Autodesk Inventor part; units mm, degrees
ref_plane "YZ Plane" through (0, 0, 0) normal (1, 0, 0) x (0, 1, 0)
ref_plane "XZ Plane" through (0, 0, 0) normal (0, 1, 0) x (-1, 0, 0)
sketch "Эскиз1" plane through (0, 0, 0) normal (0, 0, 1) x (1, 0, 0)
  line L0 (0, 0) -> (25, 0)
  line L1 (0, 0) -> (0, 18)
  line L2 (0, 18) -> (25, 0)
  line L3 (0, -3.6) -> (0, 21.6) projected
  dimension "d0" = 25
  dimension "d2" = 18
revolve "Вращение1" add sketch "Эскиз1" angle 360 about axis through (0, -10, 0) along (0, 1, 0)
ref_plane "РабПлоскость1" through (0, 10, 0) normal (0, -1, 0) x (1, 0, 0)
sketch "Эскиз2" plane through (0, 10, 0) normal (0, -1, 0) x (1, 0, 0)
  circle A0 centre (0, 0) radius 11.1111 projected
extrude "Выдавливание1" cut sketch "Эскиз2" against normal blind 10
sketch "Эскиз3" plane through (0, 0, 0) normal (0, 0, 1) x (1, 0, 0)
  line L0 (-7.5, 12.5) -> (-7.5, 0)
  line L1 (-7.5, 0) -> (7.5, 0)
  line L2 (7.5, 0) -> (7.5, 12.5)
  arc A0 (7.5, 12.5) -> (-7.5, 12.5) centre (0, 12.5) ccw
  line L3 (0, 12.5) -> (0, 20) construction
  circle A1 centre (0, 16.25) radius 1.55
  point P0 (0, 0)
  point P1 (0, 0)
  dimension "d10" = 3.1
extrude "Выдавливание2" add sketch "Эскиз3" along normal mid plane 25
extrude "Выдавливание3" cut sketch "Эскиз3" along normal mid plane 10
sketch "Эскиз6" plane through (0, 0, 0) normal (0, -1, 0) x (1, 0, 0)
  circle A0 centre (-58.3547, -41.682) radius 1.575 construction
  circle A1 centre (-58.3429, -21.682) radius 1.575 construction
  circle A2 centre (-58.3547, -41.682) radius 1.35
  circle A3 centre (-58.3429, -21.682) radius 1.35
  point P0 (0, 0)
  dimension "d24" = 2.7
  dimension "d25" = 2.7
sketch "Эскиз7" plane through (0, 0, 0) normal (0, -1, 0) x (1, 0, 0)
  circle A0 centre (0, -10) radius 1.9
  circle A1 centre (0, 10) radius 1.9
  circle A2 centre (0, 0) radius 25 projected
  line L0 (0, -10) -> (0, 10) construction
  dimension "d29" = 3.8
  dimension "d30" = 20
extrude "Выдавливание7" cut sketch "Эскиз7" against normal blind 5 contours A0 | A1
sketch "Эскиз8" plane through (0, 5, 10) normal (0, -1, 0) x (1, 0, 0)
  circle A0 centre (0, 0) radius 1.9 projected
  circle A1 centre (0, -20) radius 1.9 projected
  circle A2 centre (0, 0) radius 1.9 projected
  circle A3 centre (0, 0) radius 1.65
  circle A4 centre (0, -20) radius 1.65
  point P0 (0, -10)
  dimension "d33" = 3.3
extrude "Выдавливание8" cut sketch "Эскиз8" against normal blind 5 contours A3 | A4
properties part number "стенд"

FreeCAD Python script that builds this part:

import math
import FreeCAD as App
import Part
import Sketcher

doc = App.newDocument("Part")
params = doc.addObject("Spreadsheet::Sheet", "Params")
for row, (alias, value) in enumerate([
    ("sketch1_width", "25 mm"),
    ("sketch1_height", "18 mm"),
    ("revolution_angle", "360 deg"),
    ("pocket1_length", "10 mm"),
    ("sketch3_diameter", "3.1 mm"),
    ("sketch3_radius", "7.5 mm"),
    ("sketch3_height", "12.5 mm"),
    ("pad1_length", "25 mm"),
    ("sketch4_diameter", "3.1 mm"),
    ("sketch4_radius", "7.5 mm"),
    ("sketch4_height", "12.5 mm"),
    ("pocket2_length", "10 mm"),
    ("sketch5_diameter", "3.8 mm"),
    ("pocket3_length", "5 mm"),
    ("sketch6_diameter", "3.3 mm"),
    ("pocket4_length", "5 mm"),
], start=1):
    params.set(f"A{row}", alias)
    params.set(f"B{row}", "=" + value)
    params.setAlias(f"B{row}", alias)

body = doc.addObject("PartDesign::Body", "Body")

# Sketch on XY plane
sketch1 = body.newObject("Sketcher::SketchObject", "Sketch")
sketch1.AttachmentSupport = (doc.getObject("XY_Plane"), [""])
sketch1.MapMode = "FlatFace"
sketch1.addGeometry([
    Part.LineSegment(App.Vector(0, 18, 0), App.Vector(0, 0, 0)),
    Part.LineSegment(App.Vector(0, 0, 0), App.Vector(25, 0, 0)),
    Part.LineSegment(App.Vector(25, 0, 0), App.Vector(0, 18, 0)),
], False)
sketch1.addConstraint([
    Sketcher.Constraint("Coincident", 0, 2, 1, 1),
    Sketcher.Constraint("Coincident", 1, 2, 2, 1),
    Sketcher.Constraint("Coincident", 2, 2, 0, 1),
    Sketcher.Constraint("Vertical", 0),
    Sketcher.Constraint("Horizontal", 1),
    Sketcher.Constraint("Coincident", 0, 2, -1, 1),
    Sketcher.Constraint("DistanceX", 1, 1, 1, 2, 25.0),
    Sketcher.Constraint("DistanceY", 0, 2, 0, 1, 18.0),
])
sketch1.setExpression("Constraints[6]", "Params.sketch1_width")
sketch1.setExpression("Constraints[7]", "Params.sketch1_height")
revolution = body.newObject("PartDesign::Revolution", "Revolution")
revolution.Profile = sketch1
revolution.ReferenceAxis = (sketch1, ["V_Axis"])
revolution.setExpression("Angle", "Params.revolution_angle")

# Sketch on XZ plane
sketch2 = body.newObject("Sketcher::SketchObject", "Sketch001")
sketch2.AttachmentSupport = (doc.getObject("XZ_Plane"), [""])
sketch2.MapMode = "FlatFace"
sketch2.AttachmentOffset = App.Placement(App.Vector(0, 0, -10), App.Rotation())
sketch2.addGeometry(Part.Circle(App.Vector(0, 0, 0), App.Vector(0, 0, 1), 11.1111), False)
sketch2.addConstraint([
    Sketcher.Constraint("Coincident", 0, 3, -1, 1),
    Sketcher.Constraint("Diameter", 0, 22.2222),
])
pocket1 = body.newObject("PartDesign::Pocket", "Pocket")
pocket1.Profile = sketch2
pocket1.setExpression("Length", "Params.pocket1_length")

# Sketch on XY plane
sketch3 = body.newObject("Sketcher::SketchObject", "Sketch002")
sketch3.AttachmentSupport = (doc.getObject("XY_Plane"), [""])
sketch3.MapMode = "FlatFace"
sketch3.addGeometry([
    Part.ArcOfCircle(Part.Circle(App.Vector(0, 12.5, 0), App.Vector(0, 0, 1), 7.5), math.radians(0), math.radians(180)),  # 0
    Part.LineSegment(App.Vector(-7.5, 12.5, 0), App.Vector(-7.5, 0, 0)),  # 1
    Part.LineSegment(App.Vector(-7.5, 0, 0), App.Vector(7.5, 0, 0)),  # 2
    Part.LineSegment(App.Vector(7.5, 0, 0), App.Vector(7.5, 12.5, 0)),  # 3
    Part.Circle(App.Vector(0, 16.25, 0), App.Vector(0, 0, 1), 1.55),  # 4
], False)
sketch3.addConstraint([
    Sketcher.Constraint("Tangent", 0, 2, 1, 1),
    Sketcher.Constraint("Coincident", 1, 2, 2, 1),
    Sketcher.Constraint("Coincident", 2, 2, 3, 1),
    Sketcher.Constraint("Tangent", 3, 2, 0, 1),
    Sketcher.Constraint("Vertical", 1),
    Sketcher.Constraint("Horizontal", 2),
    Sketcher.Constraint("Vertical", 3),
    Sketcher.Constraint("Symmetric", 1, 2, 2, 2, -1, 1),
    Sketcher.Constraint("PointOnObject", 4, 3, -2),
    Sketcher.Constraint("Diameter", 4, 3.1),
    Sketcher.Constraint("Radius", 0, 7.5),
    Sketcher.Constraint("DistanceY", 1, 2, 1, 1, 12.5),
    Sketcher.Constraint("DistanceY", -1, 1, 4, 3, 16.25),
])
sketch3.setExpression("Constraints[9]", "Params.sketch3_diameter")
sketch3.setExpression("Constraints[10]", "Params.sketch3_radius")
sketch3.setExpression("Constraints[11]", "Params.sketch3_height")
pad1 = body.newObject("PartDesign::Pad", "Pad")
pad1.Profile = sketch3
pad1.setExpression("Length", "Params.pad1_length")
pad1.Midplane = True

# Sketch on XY plane
sketch4 = body.newObject("Sketcher::SketchObject", "Sketch003")
sketch4.AttachmentSupport = (doc.getObject("XY_Plane"), [""])
sketch4.MapMode = "FlatFace"
sketch4.addGeometry([
    Part.ArcOfCircle(Part.Circle(App.Vector(0, 12.5, 0), App.Vector(0, 0, 1), 7.5), math.radians(0), math.radians(180)),  # 0
    Part.LineSegment(App.Vector(-7.5, 12.5, 0), App.Vector(-7.5, 0, 0)),  # 1
    Part.LineSegment(App.Vector(-7.5, 0, 0), App.Vector(7.5, 0, 0)),  # 2
    Part.LineSegment(App.Vector(7.5, 0, 0), App.Vector(7.5, 12.5, 0)),  # 3
    Part.Circle(App.Vector(0, 16.25, 0), App.Vector(0, 0, 1), 1.55),  # 4
], False)
sketch4.addConstraint([
    Sketcher.Constraint("Tangent", 0, 2, 1, 1),
    Sketcher.Constraint("Coincident", 1, 2, 2, 1),
    Sketcher.Constraint("Coincident", 2, 2, 3, 1),
    Sketcher.Constraint("Tangent", 3, 2, 0, 1),
    Sketcher.Constraint("Vertical", 1),
    Sketcher.Constraint("Horizontal", 2),
    Sketcher.Constraint("Vertical", 3),
    Sketcher.Constraint("Symmetric", 1, 2, 2, 2, -1, 1),
    Sketcher.Constraint("PointOnObject", 4, 3, -2),
    Sketcher.Constraint("Diameter", 4, 3.1),
    Sketcher.Constraint("Radius", 0, 7.5),
    Sketcher.Constraint("DistanceY", 1, 2, 1, 1, 12.5),
    Sketcher.Constraint("DistanceY", -1, 1, 4, 3, 16.25),
])
sketch4.setExpression("Constraints[9]", "Params.sketch4_diameter")
sketch4.setExpression("Constraints[10]", "Params.sketch4_radius")
sketch4.setExpression("Constraints[11]", "Params.sketch4_height")
pocket2 = body.newObject("PartDesign::Pocket", "Pocket001")
pocket2.Profile = sketch4
pocket2.setExpression("Length", "Params.pocket2_length")
pocket2.Midplane = True

# Sketch on XZ plane
sketch5 = body.newObject("Sketcher::SketchObject", "Sketch004")
sketch5.AttachmentSupport = (doc.getObject("XZ_Plane"), [""])
sketch5.MapMode = "FlatFace"
sketch5.addGeometry([
    Part.Circle(App.Vector(0, -10, 0), App.Vector(0, 0, 1), 1.9),
    Part.Circle(App.Vector(0, 10, 0), App.Vector(0, 0, 1), 1.9),
], False)
sketch5.addConstraint([
    Sketcher.Constraint("Equal", 0, 1),
    Sketcher.Constraint("Symmetric", 0, 3, 1, 3, -1, 1),
    Sketcher.Constraint("PointOnObject", 0, 3, -2),
    Sketcher.Constraint("Diameter", 0, 3.8),
    Sketcher.Constraint("DistanceY", 0, 3, 1, 3, 20.0),
])
sketch5.setExpression("Constraints[3]", "Params.sketch5_diameter")
pocket3 = body.newObject("PartDesign::Pocket", "Pocket002")
pocket3.Profile = sketch5
pocket3.setExpression("Length", "Params.pocket3_length")

# Sketch on XZ plane
sketch6 = body.newObject("Sketcher::SketchObject", "Sketch005")
sketch6.AttachmentSupport = (doc.getObject("XZ_Plane"), [""])
sketch6.MapMode = "FlatFace"
sketch6.AttachmentOffset = App.Placement(App.Vector(0, 0, -5), App.Rotation())
sketch6.addGeometry([
    Part.Circle(App.Vector(0, 10, 0), App.Vector(0, 0, 1), 1.65),
    Part.Circle(App.Vector(0, -10, 0), App.Vector(0, 0, 1), 1.65),
], False)
sketch6.addConstraint([
    Sketcher.Constraint("Equal", 0, 1),
    Sketcher.Constraint("Symmetric", 0, 3, 1, 3, -1, 1),
    Sketcher.Constraint("PointOnObject", 0, 3, -2),
    Sketcher.Constraint("Diameter", 0, 3.3),
    Sketcher.Constraint("DistanceY", -1, 1, 0, 3, 10.0),
])
sketch6.setExpression("Constraints[3]", "Params.sketch6_diameter")
pocket4 = body.newObject("PartDesign::Pocket", "Pocket003")
pocket4.Profile = sketch6
pocket4.setExpression("Length", "Params.pocket4_length")

doc.recompute()
